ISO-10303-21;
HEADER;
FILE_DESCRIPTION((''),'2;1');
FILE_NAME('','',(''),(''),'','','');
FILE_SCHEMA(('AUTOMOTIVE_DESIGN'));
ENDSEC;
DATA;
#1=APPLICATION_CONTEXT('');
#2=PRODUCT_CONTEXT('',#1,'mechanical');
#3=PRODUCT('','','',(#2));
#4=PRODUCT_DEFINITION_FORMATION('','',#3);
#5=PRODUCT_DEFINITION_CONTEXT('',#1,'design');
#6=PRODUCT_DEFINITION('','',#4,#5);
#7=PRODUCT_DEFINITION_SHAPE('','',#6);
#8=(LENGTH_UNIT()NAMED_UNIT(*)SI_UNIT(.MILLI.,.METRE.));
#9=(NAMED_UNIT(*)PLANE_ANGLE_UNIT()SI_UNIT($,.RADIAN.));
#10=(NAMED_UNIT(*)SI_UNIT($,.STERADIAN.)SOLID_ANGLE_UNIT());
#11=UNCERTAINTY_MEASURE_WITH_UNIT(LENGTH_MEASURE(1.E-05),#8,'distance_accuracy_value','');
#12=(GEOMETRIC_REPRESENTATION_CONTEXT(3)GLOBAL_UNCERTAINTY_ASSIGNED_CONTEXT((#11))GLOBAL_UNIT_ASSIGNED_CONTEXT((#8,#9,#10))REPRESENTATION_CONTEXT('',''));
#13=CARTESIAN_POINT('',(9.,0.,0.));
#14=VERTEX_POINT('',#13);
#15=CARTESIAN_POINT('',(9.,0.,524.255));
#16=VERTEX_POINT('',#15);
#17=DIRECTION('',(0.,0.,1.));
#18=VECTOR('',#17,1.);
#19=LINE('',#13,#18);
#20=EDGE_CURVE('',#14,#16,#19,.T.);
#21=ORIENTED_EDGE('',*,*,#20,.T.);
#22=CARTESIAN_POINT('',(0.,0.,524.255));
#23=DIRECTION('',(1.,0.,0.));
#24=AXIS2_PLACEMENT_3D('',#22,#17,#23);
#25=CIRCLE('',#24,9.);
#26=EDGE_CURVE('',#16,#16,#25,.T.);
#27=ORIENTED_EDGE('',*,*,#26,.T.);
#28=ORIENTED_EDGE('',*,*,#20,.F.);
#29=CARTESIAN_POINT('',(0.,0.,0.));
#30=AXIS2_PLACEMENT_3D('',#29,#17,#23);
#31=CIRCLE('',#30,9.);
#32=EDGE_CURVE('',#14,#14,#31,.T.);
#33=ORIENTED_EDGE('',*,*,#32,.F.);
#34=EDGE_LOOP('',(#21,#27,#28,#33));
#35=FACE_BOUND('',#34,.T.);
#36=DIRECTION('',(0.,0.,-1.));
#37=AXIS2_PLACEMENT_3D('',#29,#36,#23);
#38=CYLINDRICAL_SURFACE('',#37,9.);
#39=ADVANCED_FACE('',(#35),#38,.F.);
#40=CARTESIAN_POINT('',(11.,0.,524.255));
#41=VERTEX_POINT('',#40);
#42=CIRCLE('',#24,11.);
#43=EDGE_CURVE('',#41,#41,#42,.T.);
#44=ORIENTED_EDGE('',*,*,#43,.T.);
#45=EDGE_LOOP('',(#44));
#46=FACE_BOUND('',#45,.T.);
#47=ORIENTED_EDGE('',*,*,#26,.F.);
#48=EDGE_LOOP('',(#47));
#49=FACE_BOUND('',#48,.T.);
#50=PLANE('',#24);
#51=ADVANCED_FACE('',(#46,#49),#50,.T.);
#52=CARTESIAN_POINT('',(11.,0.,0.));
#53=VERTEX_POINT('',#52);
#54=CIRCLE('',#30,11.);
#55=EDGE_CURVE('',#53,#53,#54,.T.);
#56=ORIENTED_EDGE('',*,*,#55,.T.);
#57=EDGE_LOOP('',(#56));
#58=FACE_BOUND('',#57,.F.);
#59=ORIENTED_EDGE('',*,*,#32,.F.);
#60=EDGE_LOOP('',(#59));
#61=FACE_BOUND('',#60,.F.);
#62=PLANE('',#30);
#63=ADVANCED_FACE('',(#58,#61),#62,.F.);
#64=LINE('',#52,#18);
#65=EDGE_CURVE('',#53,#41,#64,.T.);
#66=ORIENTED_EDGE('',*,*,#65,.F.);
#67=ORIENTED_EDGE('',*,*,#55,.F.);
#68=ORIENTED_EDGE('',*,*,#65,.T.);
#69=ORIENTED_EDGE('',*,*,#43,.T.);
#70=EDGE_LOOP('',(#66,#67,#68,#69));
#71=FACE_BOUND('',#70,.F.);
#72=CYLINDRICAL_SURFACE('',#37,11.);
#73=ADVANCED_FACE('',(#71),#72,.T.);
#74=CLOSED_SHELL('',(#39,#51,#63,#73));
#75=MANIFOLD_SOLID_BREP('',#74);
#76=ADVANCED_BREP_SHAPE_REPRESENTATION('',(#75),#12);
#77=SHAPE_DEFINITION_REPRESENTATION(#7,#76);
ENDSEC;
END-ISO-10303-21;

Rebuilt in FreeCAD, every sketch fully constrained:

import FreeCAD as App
import Part
import Sketcher

V = App.Vector

doc = App.newDocument("Part")
body = doc.addObject("PartDesign::Body", "Body")

sketch1 = body.newObject("Sketcher::SketchObject", "Sketch")
sketch1.AttachmentSupport = (doc.getObject("XY_Plane"), [""])
sketch1.MapMode = "FlatFace"
sketch1.addGeometry([
    Part.Circle(V(0, 0, 0), V(0, 0, 1), 11),
    Part.Circle(V(0, 0, 0), V(0, 0, 1), 9),
], False)
sketch1.addConstraint([
    Sketcher.Constraint("Coincident", 0, 3, -1, 1),
    Sketcher.Constraint("Coincident", 1, 3, -1, 1),
    Sketcher.Constraint("Diameter", 0, 22.0),
    Sketcher.Constraint("Diameter", 1, 18.0),
])
pad1 = body.newObject("PartDesign::Pad", "Pad")
pad1.Profile = sketch1
pad1.Length = 524.255

doc.recompute()
